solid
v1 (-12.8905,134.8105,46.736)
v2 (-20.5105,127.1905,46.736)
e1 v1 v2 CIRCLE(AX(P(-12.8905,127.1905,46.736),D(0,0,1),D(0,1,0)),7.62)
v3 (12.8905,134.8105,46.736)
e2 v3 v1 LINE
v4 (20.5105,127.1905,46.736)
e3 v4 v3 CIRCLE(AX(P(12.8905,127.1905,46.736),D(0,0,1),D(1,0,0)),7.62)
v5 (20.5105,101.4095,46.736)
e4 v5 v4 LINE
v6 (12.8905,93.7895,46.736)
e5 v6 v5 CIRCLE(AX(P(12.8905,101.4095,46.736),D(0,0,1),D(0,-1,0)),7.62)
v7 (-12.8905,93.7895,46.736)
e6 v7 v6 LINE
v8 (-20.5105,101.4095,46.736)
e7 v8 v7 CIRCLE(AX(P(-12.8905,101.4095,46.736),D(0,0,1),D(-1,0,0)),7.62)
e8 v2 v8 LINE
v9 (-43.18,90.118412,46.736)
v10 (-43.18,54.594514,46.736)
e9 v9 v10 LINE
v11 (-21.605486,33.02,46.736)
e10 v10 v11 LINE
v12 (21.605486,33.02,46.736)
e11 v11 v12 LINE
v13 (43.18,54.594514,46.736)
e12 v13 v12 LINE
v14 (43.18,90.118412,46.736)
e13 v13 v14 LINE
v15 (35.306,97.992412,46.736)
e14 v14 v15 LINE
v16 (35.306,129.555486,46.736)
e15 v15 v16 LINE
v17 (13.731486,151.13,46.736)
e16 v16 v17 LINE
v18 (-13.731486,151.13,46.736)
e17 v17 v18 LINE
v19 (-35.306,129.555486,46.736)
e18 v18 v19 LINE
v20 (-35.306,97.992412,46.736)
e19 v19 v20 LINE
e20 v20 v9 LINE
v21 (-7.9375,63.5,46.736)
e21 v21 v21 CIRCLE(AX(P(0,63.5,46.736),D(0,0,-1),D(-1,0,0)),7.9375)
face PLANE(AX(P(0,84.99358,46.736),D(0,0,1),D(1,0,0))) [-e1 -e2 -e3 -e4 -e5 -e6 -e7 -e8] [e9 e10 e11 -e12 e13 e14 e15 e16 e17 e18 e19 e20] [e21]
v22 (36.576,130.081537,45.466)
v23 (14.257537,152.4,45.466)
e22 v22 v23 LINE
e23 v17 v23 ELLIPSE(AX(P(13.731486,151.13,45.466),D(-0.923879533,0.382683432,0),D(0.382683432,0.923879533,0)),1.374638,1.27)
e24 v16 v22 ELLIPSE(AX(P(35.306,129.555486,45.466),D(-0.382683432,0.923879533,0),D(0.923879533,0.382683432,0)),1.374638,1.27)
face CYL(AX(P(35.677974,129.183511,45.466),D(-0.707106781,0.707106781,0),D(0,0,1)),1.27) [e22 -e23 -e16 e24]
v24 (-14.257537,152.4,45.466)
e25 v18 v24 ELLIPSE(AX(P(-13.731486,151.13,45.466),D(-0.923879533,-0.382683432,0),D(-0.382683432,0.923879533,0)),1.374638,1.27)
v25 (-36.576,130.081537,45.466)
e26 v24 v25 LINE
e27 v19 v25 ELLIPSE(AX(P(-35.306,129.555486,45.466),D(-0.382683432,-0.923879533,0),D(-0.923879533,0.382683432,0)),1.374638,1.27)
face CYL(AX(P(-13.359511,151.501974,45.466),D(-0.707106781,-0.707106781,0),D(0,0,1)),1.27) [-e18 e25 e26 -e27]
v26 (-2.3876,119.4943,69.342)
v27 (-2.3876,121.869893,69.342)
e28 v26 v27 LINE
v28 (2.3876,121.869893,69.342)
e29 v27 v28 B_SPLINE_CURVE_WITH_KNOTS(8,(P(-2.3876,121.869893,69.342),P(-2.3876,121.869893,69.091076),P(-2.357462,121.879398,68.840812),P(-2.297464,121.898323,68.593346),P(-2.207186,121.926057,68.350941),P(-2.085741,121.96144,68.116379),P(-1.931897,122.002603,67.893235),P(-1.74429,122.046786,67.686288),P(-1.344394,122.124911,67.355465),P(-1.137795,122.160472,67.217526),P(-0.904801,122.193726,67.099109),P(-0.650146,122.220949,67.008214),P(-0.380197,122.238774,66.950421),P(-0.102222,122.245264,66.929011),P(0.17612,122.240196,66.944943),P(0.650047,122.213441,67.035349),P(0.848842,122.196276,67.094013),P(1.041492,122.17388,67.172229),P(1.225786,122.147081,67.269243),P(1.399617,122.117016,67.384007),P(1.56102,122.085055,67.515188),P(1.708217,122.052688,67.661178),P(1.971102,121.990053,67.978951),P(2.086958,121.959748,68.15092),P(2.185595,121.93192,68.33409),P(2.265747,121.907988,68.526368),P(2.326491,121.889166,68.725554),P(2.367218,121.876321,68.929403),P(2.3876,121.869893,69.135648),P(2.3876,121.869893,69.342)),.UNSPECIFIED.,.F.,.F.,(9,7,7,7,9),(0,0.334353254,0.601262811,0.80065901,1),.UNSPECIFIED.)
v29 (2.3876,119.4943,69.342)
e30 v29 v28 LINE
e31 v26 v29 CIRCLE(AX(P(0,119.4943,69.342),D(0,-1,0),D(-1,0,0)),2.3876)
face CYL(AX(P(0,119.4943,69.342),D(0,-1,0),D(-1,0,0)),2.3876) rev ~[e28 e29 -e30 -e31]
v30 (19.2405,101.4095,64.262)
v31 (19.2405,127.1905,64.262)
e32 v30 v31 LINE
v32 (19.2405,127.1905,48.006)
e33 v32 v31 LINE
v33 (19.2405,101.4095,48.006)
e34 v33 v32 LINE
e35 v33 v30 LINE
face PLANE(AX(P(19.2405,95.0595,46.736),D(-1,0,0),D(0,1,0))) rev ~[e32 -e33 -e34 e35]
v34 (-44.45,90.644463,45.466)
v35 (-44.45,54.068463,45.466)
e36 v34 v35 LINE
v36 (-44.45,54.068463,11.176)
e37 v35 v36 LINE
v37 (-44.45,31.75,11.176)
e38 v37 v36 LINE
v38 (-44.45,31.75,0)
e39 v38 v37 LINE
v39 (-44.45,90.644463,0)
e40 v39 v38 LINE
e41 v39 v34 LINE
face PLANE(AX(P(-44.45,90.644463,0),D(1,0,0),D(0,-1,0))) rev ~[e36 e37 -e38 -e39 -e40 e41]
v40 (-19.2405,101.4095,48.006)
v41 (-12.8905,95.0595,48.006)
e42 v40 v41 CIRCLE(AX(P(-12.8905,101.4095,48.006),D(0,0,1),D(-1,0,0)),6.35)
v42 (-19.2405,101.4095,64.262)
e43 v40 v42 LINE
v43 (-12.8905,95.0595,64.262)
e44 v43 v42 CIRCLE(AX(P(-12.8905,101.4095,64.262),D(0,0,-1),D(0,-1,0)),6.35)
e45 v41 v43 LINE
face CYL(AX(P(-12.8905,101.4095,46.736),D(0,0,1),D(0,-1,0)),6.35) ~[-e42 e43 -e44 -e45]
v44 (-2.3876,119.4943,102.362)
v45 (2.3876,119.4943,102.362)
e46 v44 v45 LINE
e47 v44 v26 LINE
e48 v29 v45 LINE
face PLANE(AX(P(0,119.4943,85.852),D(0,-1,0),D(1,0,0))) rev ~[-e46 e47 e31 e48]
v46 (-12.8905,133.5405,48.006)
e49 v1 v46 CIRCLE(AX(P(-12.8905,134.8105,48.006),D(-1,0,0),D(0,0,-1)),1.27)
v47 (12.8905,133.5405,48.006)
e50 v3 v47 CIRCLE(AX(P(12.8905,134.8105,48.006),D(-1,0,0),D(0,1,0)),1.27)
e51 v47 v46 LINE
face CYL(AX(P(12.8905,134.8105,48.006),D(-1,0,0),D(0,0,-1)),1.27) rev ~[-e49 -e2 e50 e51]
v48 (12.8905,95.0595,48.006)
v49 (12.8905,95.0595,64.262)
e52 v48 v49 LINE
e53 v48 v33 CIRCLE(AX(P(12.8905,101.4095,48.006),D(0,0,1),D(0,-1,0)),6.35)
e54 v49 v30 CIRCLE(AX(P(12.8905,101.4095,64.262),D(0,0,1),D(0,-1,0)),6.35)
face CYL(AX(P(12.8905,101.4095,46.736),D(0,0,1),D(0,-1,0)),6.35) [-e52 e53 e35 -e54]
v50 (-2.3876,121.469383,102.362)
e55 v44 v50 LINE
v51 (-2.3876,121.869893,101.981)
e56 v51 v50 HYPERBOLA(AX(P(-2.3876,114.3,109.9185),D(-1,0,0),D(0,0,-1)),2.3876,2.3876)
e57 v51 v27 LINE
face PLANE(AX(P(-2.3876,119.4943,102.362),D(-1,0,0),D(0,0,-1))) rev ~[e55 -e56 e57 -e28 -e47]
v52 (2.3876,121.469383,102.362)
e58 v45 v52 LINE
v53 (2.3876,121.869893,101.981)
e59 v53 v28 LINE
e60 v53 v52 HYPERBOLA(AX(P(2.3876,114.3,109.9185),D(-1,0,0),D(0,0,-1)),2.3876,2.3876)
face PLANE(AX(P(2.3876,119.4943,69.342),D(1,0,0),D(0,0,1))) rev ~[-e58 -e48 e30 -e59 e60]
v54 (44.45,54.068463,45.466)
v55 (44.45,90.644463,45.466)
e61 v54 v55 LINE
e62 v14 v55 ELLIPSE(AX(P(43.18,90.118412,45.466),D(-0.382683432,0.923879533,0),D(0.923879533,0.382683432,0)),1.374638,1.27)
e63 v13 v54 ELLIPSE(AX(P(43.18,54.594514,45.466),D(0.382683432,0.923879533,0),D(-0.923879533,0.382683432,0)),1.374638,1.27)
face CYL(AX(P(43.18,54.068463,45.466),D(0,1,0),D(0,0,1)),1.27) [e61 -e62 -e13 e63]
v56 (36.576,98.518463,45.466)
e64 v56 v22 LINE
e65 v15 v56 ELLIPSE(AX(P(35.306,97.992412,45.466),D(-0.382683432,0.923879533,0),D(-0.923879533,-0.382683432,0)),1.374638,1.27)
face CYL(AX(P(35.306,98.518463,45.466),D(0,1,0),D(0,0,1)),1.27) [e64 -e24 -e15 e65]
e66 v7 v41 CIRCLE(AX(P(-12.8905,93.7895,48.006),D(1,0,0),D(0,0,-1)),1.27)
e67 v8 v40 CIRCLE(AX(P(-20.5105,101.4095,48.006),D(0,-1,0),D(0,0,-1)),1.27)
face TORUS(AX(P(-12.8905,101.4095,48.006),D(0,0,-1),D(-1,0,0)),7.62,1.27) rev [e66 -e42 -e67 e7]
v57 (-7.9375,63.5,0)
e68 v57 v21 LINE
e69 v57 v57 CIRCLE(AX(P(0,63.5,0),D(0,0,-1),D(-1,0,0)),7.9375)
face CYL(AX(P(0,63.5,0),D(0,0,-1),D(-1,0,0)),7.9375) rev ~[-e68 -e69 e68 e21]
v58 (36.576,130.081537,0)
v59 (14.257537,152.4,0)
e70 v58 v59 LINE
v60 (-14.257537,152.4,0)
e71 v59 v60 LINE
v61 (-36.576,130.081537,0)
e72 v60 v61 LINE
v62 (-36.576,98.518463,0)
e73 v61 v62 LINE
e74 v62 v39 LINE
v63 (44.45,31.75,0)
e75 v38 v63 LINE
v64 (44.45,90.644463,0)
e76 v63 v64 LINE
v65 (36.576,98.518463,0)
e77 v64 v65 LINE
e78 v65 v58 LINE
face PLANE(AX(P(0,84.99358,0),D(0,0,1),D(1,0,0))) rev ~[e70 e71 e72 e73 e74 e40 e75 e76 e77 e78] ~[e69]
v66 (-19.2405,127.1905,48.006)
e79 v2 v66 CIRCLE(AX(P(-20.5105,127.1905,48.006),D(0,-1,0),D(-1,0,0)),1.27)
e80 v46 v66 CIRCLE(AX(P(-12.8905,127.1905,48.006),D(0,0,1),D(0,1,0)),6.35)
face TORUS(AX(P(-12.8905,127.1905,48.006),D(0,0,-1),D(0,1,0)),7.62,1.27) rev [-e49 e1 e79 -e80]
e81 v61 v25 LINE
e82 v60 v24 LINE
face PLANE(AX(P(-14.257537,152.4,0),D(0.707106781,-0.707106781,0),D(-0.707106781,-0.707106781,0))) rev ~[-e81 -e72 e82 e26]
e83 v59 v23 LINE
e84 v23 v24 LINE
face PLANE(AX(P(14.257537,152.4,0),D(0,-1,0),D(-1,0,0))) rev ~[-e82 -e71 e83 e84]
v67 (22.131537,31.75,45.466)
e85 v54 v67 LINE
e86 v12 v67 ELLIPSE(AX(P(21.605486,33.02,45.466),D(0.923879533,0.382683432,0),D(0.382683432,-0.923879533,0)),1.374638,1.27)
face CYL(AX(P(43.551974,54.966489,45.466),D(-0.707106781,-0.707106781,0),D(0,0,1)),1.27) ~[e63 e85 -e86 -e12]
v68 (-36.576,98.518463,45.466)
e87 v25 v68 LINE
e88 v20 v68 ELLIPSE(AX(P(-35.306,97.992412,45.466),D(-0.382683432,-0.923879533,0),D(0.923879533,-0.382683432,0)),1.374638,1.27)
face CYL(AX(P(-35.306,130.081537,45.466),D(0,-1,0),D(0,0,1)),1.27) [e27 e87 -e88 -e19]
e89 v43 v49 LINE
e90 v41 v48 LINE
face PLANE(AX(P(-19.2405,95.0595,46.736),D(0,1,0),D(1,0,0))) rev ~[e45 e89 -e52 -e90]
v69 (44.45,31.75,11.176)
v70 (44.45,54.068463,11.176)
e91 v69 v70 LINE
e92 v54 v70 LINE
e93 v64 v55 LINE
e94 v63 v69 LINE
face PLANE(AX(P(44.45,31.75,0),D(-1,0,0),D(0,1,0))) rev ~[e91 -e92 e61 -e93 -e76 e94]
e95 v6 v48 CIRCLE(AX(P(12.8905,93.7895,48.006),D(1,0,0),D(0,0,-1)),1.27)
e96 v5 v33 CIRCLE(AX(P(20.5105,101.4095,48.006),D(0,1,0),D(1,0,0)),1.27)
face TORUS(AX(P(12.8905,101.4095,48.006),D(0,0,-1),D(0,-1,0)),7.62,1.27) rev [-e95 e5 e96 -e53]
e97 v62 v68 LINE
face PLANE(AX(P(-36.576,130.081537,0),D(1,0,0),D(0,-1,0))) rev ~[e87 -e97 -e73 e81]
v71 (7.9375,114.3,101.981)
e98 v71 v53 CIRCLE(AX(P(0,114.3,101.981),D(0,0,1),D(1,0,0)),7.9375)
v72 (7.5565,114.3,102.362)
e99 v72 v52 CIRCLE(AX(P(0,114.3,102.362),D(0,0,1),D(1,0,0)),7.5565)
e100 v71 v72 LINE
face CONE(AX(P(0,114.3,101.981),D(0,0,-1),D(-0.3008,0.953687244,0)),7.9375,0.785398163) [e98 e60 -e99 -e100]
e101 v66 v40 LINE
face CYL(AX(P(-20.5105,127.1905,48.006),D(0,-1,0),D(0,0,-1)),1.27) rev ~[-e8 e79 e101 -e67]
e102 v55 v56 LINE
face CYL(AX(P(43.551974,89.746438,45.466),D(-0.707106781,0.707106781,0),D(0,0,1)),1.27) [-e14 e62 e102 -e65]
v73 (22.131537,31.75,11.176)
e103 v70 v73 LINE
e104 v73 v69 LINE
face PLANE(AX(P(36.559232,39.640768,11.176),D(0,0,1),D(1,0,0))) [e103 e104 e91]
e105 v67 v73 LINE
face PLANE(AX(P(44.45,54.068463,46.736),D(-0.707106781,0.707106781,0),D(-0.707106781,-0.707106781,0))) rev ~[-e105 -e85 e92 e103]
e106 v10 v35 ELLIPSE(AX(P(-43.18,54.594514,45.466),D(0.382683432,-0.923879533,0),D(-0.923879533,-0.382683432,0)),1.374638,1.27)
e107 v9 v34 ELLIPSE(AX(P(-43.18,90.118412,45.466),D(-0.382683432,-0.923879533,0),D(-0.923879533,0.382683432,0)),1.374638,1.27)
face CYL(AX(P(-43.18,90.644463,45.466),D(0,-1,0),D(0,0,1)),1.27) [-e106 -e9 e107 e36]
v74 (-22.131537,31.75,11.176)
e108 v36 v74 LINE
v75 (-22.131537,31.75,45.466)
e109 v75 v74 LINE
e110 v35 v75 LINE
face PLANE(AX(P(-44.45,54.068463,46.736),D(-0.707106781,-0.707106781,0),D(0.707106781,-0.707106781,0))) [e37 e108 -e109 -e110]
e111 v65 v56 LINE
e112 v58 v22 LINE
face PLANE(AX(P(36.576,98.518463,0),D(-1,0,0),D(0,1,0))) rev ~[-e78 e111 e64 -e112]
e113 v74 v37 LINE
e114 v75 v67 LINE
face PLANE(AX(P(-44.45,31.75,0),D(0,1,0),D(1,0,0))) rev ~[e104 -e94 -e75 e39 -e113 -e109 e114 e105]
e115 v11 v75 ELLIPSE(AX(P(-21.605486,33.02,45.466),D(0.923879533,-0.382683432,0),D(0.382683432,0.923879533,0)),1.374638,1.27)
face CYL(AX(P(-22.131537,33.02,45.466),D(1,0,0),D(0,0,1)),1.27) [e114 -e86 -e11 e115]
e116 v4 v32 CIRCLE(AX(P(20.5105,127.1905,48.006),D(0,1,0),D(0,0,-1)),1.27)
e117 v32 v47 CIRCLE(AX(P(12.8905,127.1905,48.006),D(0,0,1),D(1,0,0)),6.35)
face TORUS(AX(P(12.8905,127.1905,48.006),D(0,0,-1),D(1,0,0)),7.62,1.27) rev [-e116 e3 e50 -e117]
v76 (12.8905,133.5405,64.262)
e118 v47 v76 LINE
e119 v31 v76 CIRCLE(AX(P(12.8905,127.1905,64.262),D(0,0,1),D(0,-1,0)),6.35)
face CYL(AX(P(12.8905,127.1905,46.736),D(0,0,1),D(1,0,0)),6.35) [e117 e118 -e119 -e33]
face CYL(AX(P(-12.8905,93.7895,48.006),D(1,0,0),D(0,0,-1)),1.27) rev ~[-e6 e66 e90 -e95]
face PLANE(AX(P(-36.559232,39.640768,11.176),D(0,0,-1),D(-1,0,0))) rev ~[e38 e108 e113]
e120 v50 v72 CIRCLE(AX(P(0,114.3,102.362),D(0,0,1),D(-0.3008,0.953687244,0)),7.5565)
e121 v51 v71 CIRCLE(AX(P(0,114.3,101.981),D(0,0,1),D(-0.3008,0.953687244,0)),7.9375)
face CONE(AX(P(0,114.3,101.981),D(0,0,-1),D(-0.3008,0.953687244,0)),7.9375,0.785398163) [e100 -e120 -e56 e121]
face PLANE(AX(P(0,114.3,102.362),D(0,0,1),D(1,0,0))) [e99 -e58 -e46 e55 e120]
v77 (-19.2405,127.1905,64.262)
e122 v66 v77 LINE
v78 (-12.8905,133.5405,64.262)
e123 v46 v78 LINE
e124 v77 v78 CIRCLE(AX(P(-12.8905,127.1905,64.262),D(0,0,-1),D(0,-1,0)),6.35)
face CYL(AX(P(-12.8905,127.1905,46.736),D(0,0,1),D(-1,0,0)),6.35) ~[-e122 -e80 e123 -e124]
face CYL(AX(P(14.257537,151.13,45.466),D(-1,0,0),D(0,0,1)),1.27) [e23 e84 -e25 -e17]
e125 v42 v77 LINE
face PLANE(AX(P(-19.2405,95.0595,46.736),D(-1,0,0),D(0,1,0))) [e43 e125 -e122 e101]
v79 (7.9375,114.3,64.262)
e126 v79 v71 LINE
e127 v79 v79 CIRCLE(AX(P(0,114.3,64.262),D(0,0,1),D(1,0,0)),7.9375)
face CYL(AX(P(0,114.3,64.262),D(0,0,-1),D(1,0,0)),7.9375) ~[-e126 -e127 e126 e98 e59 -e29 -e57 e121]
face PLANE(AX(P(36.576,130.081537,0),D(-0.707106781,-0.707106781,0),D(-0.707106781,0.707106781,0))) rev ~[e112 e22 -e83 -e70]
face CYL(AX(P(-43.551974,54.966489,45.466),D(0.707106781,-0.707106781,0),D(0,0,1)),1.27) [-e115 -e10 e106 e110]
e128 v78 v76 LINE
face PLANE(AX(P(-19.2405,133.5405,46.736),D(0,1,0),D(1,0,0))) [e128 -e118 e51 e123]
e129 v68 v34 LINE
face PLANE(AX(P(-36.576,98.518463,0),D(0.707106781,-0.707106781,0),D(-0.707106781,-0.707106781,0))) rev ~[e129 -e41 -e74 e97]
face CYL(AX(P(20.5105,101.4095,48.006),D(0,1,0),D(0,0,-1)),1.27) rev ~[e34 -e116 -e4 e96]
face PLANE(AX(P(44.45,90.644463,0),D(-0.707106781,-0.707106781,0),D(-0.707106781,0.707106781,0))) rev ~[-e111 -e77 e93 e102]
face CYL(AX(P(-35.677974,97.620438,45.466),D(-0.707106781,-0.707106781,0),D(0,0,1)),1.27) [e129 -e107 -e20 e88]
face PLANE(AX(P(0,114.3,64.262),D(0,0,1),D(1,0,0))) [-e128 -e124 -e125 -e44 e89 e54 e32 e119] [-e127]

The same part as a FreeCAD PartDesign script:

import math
import FreeCAD as App
import Part
import Sketcher

V = App.Vector
Q = App.Units.Quantity


def edges_at(feature, points):
    """Names of the edges that pass closest to the given points."""
    edges = feature.Shape.Edges
    near = lambda p: min(range(len(edges)), key=lambda i: edges[i].distToShape(Part.Vertex(*p))[0])
    return sorted({f"Edge{near(p) + 1}" for p in points})


def add_polygon(sketch, points):
    """Adds a closed chain of lines whose ends are joined by coincident constraints."""
    first, n = sketch.GeometryCount, len(points)
    for a, b in zip(points, points[1:] + points[:1]):
        sketch.addGeometry(Part.LineSegment(App.Vector(*a, 0), App.Vector(*b, 0)), False)
    for i in range(n):
        sketch.addConstraint(Sketcher.Constraint("Coincident", first + i, 2, first + (i + 1) % n, 1))

doc = App.newDocument("Part")
params = doc.addObject("Spreadsheet::Sheet", "Params")
for row, (alias, value) in enumerate([
    ("sketch1_width", "3.5 in"),
    ("pad1_length", "1.84 in"),
    ("sketch2_width", "1.515 in"),
    ("pad2_length", "0.69 in"),
    ("sketch3_diameter", "0.625 in"),
    ("pad3_length", "1.5 in"),
    ("pocket1_length", "1.4 in"),
    ("fillet_radius", "0.25 in"),
    ("fillet2_radius", "0.05 in"),
    ("sketch5_height", "1.3 in"),
    ("sketch5_radius", "0.094 in"),
    ("chamfer_size", "0.015 in"),
    ("sketch6_diameter", "0.625 in"),
], start=1):
    params.set(f"A{row}", alias)
    params.set(f"B{row}", "=" + value)
    params.setAlias(f"B{row}", alias)

body = doc.addObject("PartDesign::Body", "Body")

sketch1 = body.newObject("Sketcher::SketchObject", "Sketch")
sketch1.AttachmentSupport = (doc.getObject("XY_Plane"), [""])
sketch1.MapMode = "FlatFace"
add_polygon(sketch1, [(-44, 32), (44, 32), (44, 91), (37, 99), (37, 130), (14, 152), (-14, 152), (-37, 130), (-37, 99), (-44, 91)])
sketch1.addConstraint(Sketcher.Constraint("Horizontal", 0))
sketch1.addConstraint(Sketcher.Constraint("Vertical", 1))
sketch1.addConstraint(Sketcher.Constraint("Vertical", 3))
sketch1.addConstraint(Sketcher.Constraint("Horizontal", 5))
sketch1.addConstraint(Sketcher.Constraint("Vertical", 7))
sketch1.addConstraint(Sketcher.Constraint("Vertical", 9))
sketch1.addConstraint(Sketcher.Constraint("Symmetric", 3, 2, 6, 2, -2))
sketch1.addConstraint(Sketcher.Constraint("Symmetric", 1, 2, 8, 2, -2))
sketch1.addConstraint(Sketcher.Constraint("Parallel", 2, 4))
sketch1.addConstraint(Sketcher.Constraint("Perpendicular", 4, 6))
sketch1.addConstraint(Sketcher.Constraint("Parallel", 6, 8))
sketch1.addConstraint(Sketcher.Constraint("Horizontal", 2, 2, 7, 2))
sketch1.addConstraint(Sketcher.Constraint("DistanceX", 0, 1, 0, 2, Q("3.5 in")))
sketch1.addConstraint(Sketcher.Constraint("DistanceY", -1, 1, 4, 2, Q("6 in")))
sketch1.addConstraint(Sketcher.Constraint("DistanceY", -1, 1, 0, 2, Q("1.25 in")))
sketch1.addConstraint(Sketcher.Constraint("DistanceX", -1, 1, 2, 2, Q("1.44 in")))
sketch1.addConstraint(Sketcher.Constraint("DistanceX", 5, 2, 5, 1, 28.515073))
sketch1.addConstraint(Sketcher.Constraint("DistanceY", 1, 1, 1, 2, 58.894463))
sketch1.setExpression("Constraints[22]", "Params.sketch1_width")
pad1 = body.newObject("PartDesign::Pad", "Pad")
pad1.Profile = sketch1
pad1.setExpression("Length", "Params.pad1_length")

sketch2 = body.newObject("Sketcher::SketchObject", "Sketch001")
sketch2.AttachmentSupport = (doc.getObject("XY_Plane"), [""])
sketch2.MapMode = "FlatFace"
sketch2.AttachmentOffset = App.Placement(V(0, 0, 1.84 * 25.4), App.Rotation())
add_polygon(sketch2, [(-19, 134), (-19, 95), (19, 95), (19, 134)])
sketch2.addConstraint(Sketcher.Constraint("Vertical", 0))
sketch2.addConstraint(Sketcher.Constraint("Horizontal", 1))
sketch2.addConstraint(Sketcher.Constraint("Vertical", 2))
sketch2.addConstraint(Sketcher.Constraint("Horizontal", 3))
sketch2.addConstraint(Sketcher.Constraint("Equal", 3, 0))
sketch2.addConstraint(Sketcher.Constraint("DistanceX", 1, 1, 1, 2, Q("1.515 in")))
sketch2.addConstraint(Sketcher.Constraint("DistanceX", 0, 2, -1, 1, Q("0.7575 in")))
sketch2.addConstraint(Sketcher.Constraint("DistanceY", -1, 1, 0, 2, Q("3.7425 in")))
sketch2.setExpression("Constraints[9]", "Params.sketch2_width")
pad2 = body.newObject("PartDesign::Pad", "Pad001")
pad2.Profile = sketch2
pad2.setExpression("Length", "Params.pad2_length")

sketch3 = body.newObject("Sketcher::SketchObject", "Sketch002")
sketch3.AttachmentSupport = (doc.getObject("XY_Plane"), [""])
sketch3.MapMode = "FlatFace"
sketch3.AttachmentOffset = App.Placement(V(0, 0, 2.53 * 25.4), App.Rotation())
sketch3.addGeometry(Part.Circle(V(0, 114, 0), V(0, 0, 1), 8), False)
sketch3.addConstraint(Sketcher.Constraint("PointOnObject", 0, 3, -2))
sketch3.addConstraint(Sketcher.Constraint("Diameter", 0, Q("0.625 in")))
sketch3.addConstraint(Sketcher.Constraint("DistanceY", -1, 1, 0, 3, Q("4.5 in")))
sketch3.setExpression("Constraints[1]", "Params.sketch3_diameter")
pad3 = body.newObject("PartDesign::Pad", "Pad002")
pad3.Profile = sketch3
pad3.setExpression("Length", "Params.pad3_length")

sketch4 = body.newObject("Sketcher::SketchObject", "Sketch003")
sketch4.AttachmentSupport = (doc.getObject("XY_Plane"), [""])
sketch4.MapMode = "FlatFace"
sketch4.AttachmentOffset = App.Placement(V(0, 0, 1.84 * 25.4), App.Rotation())
add_polygon(sketch4, [(44, 54), (22, 32), (44, 32)])
add_polygon(sketch4, [(-44, 54), (-44, 32), (-22, 32)])
sketch4.addConstraint(Sketcher.Constraint("Horizontal", 1))
sketch4.addConstraint(Sketcher.Constraint("Vertical", 2))
sketch4.addConstraint(Sketcher.Constraint("Vertical", 3))
sketch4.addConstraint(Sketcher.Constraint("Horizontal", 4))
sketch4.addConstraint(Sketcher.Constraint("Symmetric", 1, 2, 3, 2, -2))
sketch4.addConstraint(Sketcher.Constraint("Perpendicular", 0, 5))
sketch4.addConstraint(Sketcher.Constraint("Horizontal", 2, 2, 5, 2))
sketch4.addConstraint(Sketcher.Constraint("Equal", 1, 4))
sketch4.addConstraint(Sketcher.Constraint("DistanceX", 3, 2, 1, 2, Q("3.5 in")))
sketch4.addConstraint(Sketcher.Constraint("DistanceY", -1, 1, 0, 2, Q("1.25 in")))
sketch4.addConstraint(Sketcher.Constraint("DistanceX", 1, 1, 1, 2, 22.318463))
pocket1 = body.newObject("PartDesign::Pocket", "Pocket")
pocket1.Profile = sketch4
pocket1.setExpression("Length", "Params.pocket1_length")
doc.recompute()

fillet = body.newObject("PartDesign::Fillet", "Fillet")
fillet.Base = (pocket1, edges_at(pocket1, [
    (-19.241, 133.541, 55.499),
    (-19.241, 95.059, 55.499),
    (19.241, 95.059, 55.499),
    (19.241, 133.541, 55.499),
]))
fillet.setExpression("Radius", "Params.fillet_radius")
doc.recompute()

fillet2 = body.newObject("PartDesign::Fillet", "Fillet001")
fillet2.Base = (fillet, edges_at(fillet, [
    (44.45, 72.356, 46.736),
    (33.291, 42.909, 46.736),
    (40.513, 94.581, 46.736),
    (36.576, 114.3, 46.736),
    (25.417, 141.241, 46.736),
    (0, 31.75, 46.736),
    (0, 152.4, 46.736),
    (-25.417, 141.241, 46.736),
    (-36.576, 114.3, 46.736),
    (-40.513, 94.581, 46.736),
    (-44.45, 72.356, 46.736),
    (-33.291, 42.909, 46.736),
    (0, 95.059, 46.736),
    (-19.241, 114.3, 46.736),
    (19.241, 114.3, 46.736),
    (0, 133.541, 46.736),
    (-17.381, 96.919, 46.736),
    (17.381, 96.919, 46.736),
    (-17.381, 131.681, 46.736),
    (17.381, 131.681, 46.736),
]))
fillet2.setExpression("Radius", "Params.fillet2_radius")

sketch5 = body.newObject("Sketcher::SketchObject", "Sketch004")
sketch5.AttachmentSupport = (doc.getObject("XZ_Plane"), [""])
sketch5.MapMode = "FlatFace"
sketch5.AttachmentOffset = App.Placement(V(0, 0, -4.7045 * 25.4), App.Rotation())
sketch5.addGeometry(Part.LineSegment(V(-2.4, 69.3, 0), V(-2.4, 102.4, 0)), False)
sketch5.addGeometry(Part.ArcOfCircle(Part.Circle(V(0, 102.4, 0), V(0, 0, 1), 2.4), math.radians(0), math.radians(180)), False)
sketch5.addGeometry(Part.LineSegment(V(2.4, 102.4, 0), V(2.4, 69.3, 0)), False)
sketch5.addGeometry(Part.ArcOfCircle(Part.Circle(V(0, 69.3, 0), V(0, 0, 1), 2.4), math.radians(180), math.radians(360)), False)
sketch5.addConstraint(Sketcher.Constraint("Tangent", 0, 2, 1, 2))
sketch5.addConstraint(Sketcher.Constraint("Tangent", 1, 1, 2, 1))
sketch5.addConstraint(Sketcher.Constraint("Tangent", 2, 2, 3, 2))
sketch5.addConstraint(Sketcher.Constraint("Tangent", 3, 1, 0, 1))
sketch5.addConstraint(Sketcher.Constraint("Vertical", 0))
sketch5.addConstraint(Sketcher.Constraint("Vertical", 2))
sketch5.addConstraint(Sketcher.Constraint("PointOnObject", 1, 3, -2))
sketch5.addConstraint(Sketcher.Constraint("DistanceY", 0, 1, 0, 2, Q("1.3 in")))
sketch5.addConstraint(Sketcher.Constraint("Radius", 1, Q("0.094 in")))
sketch5.addConstraint(Sketcher.Constraint("DistanceY", -1, 1, 1, 3, Q("4.03 in")))
sketch5.setExpression("Constraints[7]", "Params.sketch5_height")
sketch5.setExpression("Constraints[8]", "Params.sketch5_radius")
pocket2 = body.newObject("PartDesign::Pocket", "Pocket001")
pocket2.Profile = sketch5
pocket2.Type = "ThroughAll"
doc.recompute()

chamfer = body.newObject("PartDesign::Chamfer", "Chamfer")
chamfer.Base = (pocket2, edges_at(pocket2, [(-4.693, 107.899, 102.362)]))
chamfer.setExpression("Size", "Params.chamfer_size")

sketch6 = body.newObject("Sketcher::SketchObject", "Sketch005")
sketch6.AttachmentSupport = (doc.getObject("XY_Plane"), [""])
sketch6.MapMode = "FlatFace"
sketch6.addGeometry(Part.Circle(V(0, 64, 0), V(0, 0, 1), 8), False)
sketch6.addConstraint(Sketcher.Constraint("PointOnObject", 0, 3, -2))
sketch6.addConstraint(Sketcher.Constraint("Diameter", 0, Q("0.625 in")))
sketch6.addConstraint(Sketcher.Constraint("DistanceY", -1, 1, 0, 3, Q("2.5 in")))
sketch6.setExpression("Constraints[1]", "Params.sketch6_diameter")
pocket3 = body.newObject("PartDesign::Pocket", "Pocket002")
pocket3.Profile = sketch6
pocket3.Type = "ThroughAll"
pocket3.Reversed = True

doc.recompute()
